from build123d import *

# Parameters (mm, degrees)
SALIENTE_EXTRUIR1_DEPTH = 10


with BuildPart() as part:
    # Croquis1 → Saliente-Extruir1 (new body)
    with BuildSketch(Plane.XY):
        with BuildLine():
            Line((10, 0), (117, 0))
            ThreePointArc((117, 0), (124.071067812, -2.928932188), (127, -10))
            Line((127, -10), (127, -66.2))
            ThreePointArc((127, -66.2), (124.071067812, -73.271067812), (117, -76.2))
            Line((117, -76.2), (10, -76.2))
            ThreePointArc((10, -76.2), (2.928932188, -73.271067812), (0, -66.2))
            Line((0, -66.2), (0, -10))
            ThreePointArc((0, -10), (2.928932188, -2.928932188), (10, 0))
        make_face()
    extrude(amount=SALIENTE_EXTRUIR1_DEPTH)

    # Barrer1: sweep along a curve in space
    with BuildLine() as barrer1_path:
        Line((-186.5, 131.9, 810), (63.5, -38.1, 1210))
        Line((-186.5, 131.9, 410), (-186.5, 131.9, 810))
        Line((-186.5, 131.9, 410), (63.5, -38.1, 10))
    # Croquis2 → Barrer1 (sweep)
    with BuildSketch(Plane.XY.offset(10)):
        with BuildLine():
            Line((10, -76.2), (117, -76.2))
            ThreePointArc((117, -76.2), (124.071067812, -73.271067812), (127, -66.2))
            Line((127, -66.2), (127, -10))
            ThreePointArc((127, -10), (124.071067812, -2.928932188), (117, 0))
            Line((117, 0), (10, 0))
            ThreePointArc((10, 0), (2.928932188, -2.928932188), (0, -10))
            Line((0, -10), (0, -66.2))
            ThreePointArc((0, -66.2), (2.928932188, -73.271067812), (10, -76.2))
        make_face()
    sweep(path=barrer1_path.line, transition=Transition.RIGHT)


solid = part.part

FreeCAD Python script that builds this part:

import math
import FreeCAD as App
import Part
import Sketcher
from FreeCAD import Vector

doc = App.newDocument("Part")
body = doc.addObject("PartDesign::Body", "Body")

# Sketch on XY plane
sketch1 = body.newObject("Sketcher::SketchObject", "Sketch")
sketch1.AttachmentSupport = (doc.getObject("XY_Plane"), [""])
sketch1.MapMode = "FlatFace"
sketch1.addGeometry([
    Part.LineSegment(Vector(117, 0, 0), Vector(10, 0, 0)),  # 0
    Part.ArcOfCircle(Part.Circle(Vector(10, -10, 0), Vector(0, 0, 1), 10), math.radians(90), math.radians(180)),  # 1
    Part.LineSegment(Vector(0, -10, 0), Vector(0, -66, 0)),  # 2
    Part.ArcOfCircle(Part.Circle(Vector(10, -66, 0), Vector(0, 0, 1), 10), math.radians(180), math.radians(270)),  # 3
    Part.LineSegment(Vector(10, -76, 0), Vector(117, -76, 0)),  # 4
    Part.ArcOfCircle(Part.Circle(Vector(117, -66, 0), Vector(0, 0, 1), 10), math.radians(-90), math.radians(0)),  # 5
    Part.LineSegment(Vector(127, -66, 0), Vector(127, -10, 0)),  # 6
    Part.ArcOfCircle(Part.Circle(Vector(117, -10, 0), Vector(0, 0, 1), 10), math.radians(0), math.radians(90)),  # 7
], False)
sketch1.addConstraint([
    Sketcher.Constraint("Tangent", 0, 2, 1, 1),
    Sketcher.Constraint("Tangent", 1, 2, 2, 1),
    Sketcher.Constraint("Tangent", 2, 2, 3, 1),
    Sketcher.Constraint("Tangent", 3, 2, 4, 1),
    Sketcher.Constraint("Tangent", 4, 2, 5, 1),
    Sketcher.Constraint("Tangent", 5, 2, 6, 1),
    Sketcher.Constraint("Tangent", 6, 2, 7, 1),
    Sketcher.Constraint("Tangent", 7, 2, 0, 1),
    Sketcher.Constraint("Horizontal", 0),
    Sketcher.Constraint("Vertical", 2),
    Sketcher.Constraint("Horizontal", 4),
    Sketcher.Constraint("Vertical", 6),
    Sketcher.Constraint("Equal", 1, 3),
    Sketcher.Constraint("Equal", 3, 5),
    Sketcher.Constraint("Equal", 5, 7),
    Sketcher.Constraint("PointOnObject", 0, 2, -1),
    Sketcher.Constraint("PointOnObject", 1, 2, -2),
    Sketcher.Constraint("Radius", 1, 10.0),
    Sketcher.Constraint("DistanceX", 0, 2, 0, 1, 107.0),
    Sketcher.Constraint("DistanceY", 2, 2, 2, 1, 56.2),
])
pad1 = body.newObject("PartDesign::Pad", "Pad")
pad1.Profile = sketch1
pad1.Length = 10

# Sketch on XY plane
sketch2 = body.newObject("Sketcher::SketchObject", "Sketch001")
sketch2.AttachmentSupport = (doc.getObject("XY_Plane"), [""])
sketch2.MapMode = "FlatFace"
sketch2.AttachmentOffset = App.Placement(Vector(0, 0, 10), App.Rotation())
sketch2.addGeometry([
    Part.LineSegment(Vector(10, -76, 0), Vector(117, -76, 0)),  # 0
    Part.ArcOfCircle(Part.Circle(Vector(117, -66, 0), Vector(0, 0, 1), 10), math.radians(-90), math.radians(0)),  # 1
    Part.LineSegment(Vector(127, -66, 0), Vector(127, -10, 0)),  # 2
    Part.ArcOfCircle(Part.Circle(Vector(117, -10, 0), Vector(0, 0, 1), 10), math.radians(0), math.radians(90)),  # 3
    Part.LineSegment(Vector(117, 0, 0), Vector(10, 0, 0)),  # 4
    Part.ArcOfCircle(Part.Circle(Vector(10, -10, 0), Vector(0, 0, 1), 10), math.radians(90), math.radians(180)),  # 5
    Part.LineSegment(Vector(0, -10, 0), Vector(0, -66, 0)),  # 6
    Part.ArcOfCircle(Part.Circle(Vector(10, -66, 0), Vector(0, 0, 1), 10), math.radians(180), math.radians(270)),  # 7
], False)
sketch2.addConstraint([
    Sketcher.Constraint("Tangent", 0, 2, 1, 1),
    Sketcher.Constraint("Tangent", 1, 2, 2, 1),
    Sketcher.Constraint("Tangent", 2, 2, 3, 1),
    Sketcher.Constraint("Tangent", 3, 2, 4, 1),
    Sketcher.Constraint("Tangent", 4, 2, 5, 1),
    Sketcher.Constraint("Tangent", 5, 2, 6, 1),
    Sketcher.Constraint("Tangent", 6, 2, 7, 1),
    Sketcher.Constraint("Tangent", 7, 2, 0, 1),
    Sketcher.Constraint("Horizontal", 0),
    Sketcher.Constraint("Vertical", 2),
    Sketcher.Constraint("Horizontal", 4),
    Sketcher.Constraint("Vertical", 6),
    Sketcher.Constraint("Equal", 1, 3),
    Sketcher.Constraint("Equal", 3, 5),
    Sketcher.Constraint("Equal", 5, 7),
    Sketcher.Constraint("PointOnObject", 3, 2, -1),
    Sketcher.Constraint("PointOnObject", 5, 2, -2),
    Sketcher.Constraint("Radius", 1, 10.0),
    Sketcher.Constraint("DistanceX", 0, 1, 0, 2, 107.0),
    Sketcher.Constraint("DistanceY", 2, 1, 2, 2, 56.2),
])

# Sketch on an angled plane
sketch3 = body.newObject("Sketcher::SketchObject", "Sketch002")
sketch3.Placement = App.Placement(Vector(2.362144, 3.473742, 0), App.Rotation(Vector(0.826926502, -0.562310021, 0), Vector(0, 0, 0.999999999), Vector(-0.562310021, -0.826926502, 0), "ZXY"))
sketch3.addGeometry([
    Part.LineSegment(Vector(74, 10, 0), Vector(-228, 410, 0)),
    Part.LineSegment(Vector(-228, 410, 0), Vector(-228, 810, 0)),
    Part.LineSegment(Vector(-228, 810, 0), Vector(74, 1210, 0)),
], False)
sketch3.addConstraint([
    Sketcher.Constraint("Coincident", 0, 2, 1, 1),
    Sketcher.Constraint("Coincident", 1, 2, 2, 1),
    Sketcher.Constraint("Vertical", 1),
    Sketcher.Constraint("Vertical", 0, 1, 2, 2),
    Sketcher.Constraint("Equal", 0, 2),
    Sketcher.Constraint("DistanceY", 1, 1, 1, 2, 400.0),
    Sketcher.Constraint("DistanceY", -1, 1, 0, 1, 10.0),
    Sketcher.Constraint("DistanceY", -1, 1, 0, 2, 410.0),
    Sketcher.Constraint("DistanceX", 0, 2, 0, 1, 302.324329),
    Sketcher.Constraint("DistanceX", -1, 1, 0, 1, 73.933845),
])
doc.recompute()

additivepipe = body.newObject("PartDesign::AdditivePipe", "AdditivePipe")
additivepipe.Profile = sketch2
additivepipe.Spine = (sketch3, ["Edge1", "Edge2", "Edge3"])
additivepipe.Transition = "Right corner"

doc.recompute()
